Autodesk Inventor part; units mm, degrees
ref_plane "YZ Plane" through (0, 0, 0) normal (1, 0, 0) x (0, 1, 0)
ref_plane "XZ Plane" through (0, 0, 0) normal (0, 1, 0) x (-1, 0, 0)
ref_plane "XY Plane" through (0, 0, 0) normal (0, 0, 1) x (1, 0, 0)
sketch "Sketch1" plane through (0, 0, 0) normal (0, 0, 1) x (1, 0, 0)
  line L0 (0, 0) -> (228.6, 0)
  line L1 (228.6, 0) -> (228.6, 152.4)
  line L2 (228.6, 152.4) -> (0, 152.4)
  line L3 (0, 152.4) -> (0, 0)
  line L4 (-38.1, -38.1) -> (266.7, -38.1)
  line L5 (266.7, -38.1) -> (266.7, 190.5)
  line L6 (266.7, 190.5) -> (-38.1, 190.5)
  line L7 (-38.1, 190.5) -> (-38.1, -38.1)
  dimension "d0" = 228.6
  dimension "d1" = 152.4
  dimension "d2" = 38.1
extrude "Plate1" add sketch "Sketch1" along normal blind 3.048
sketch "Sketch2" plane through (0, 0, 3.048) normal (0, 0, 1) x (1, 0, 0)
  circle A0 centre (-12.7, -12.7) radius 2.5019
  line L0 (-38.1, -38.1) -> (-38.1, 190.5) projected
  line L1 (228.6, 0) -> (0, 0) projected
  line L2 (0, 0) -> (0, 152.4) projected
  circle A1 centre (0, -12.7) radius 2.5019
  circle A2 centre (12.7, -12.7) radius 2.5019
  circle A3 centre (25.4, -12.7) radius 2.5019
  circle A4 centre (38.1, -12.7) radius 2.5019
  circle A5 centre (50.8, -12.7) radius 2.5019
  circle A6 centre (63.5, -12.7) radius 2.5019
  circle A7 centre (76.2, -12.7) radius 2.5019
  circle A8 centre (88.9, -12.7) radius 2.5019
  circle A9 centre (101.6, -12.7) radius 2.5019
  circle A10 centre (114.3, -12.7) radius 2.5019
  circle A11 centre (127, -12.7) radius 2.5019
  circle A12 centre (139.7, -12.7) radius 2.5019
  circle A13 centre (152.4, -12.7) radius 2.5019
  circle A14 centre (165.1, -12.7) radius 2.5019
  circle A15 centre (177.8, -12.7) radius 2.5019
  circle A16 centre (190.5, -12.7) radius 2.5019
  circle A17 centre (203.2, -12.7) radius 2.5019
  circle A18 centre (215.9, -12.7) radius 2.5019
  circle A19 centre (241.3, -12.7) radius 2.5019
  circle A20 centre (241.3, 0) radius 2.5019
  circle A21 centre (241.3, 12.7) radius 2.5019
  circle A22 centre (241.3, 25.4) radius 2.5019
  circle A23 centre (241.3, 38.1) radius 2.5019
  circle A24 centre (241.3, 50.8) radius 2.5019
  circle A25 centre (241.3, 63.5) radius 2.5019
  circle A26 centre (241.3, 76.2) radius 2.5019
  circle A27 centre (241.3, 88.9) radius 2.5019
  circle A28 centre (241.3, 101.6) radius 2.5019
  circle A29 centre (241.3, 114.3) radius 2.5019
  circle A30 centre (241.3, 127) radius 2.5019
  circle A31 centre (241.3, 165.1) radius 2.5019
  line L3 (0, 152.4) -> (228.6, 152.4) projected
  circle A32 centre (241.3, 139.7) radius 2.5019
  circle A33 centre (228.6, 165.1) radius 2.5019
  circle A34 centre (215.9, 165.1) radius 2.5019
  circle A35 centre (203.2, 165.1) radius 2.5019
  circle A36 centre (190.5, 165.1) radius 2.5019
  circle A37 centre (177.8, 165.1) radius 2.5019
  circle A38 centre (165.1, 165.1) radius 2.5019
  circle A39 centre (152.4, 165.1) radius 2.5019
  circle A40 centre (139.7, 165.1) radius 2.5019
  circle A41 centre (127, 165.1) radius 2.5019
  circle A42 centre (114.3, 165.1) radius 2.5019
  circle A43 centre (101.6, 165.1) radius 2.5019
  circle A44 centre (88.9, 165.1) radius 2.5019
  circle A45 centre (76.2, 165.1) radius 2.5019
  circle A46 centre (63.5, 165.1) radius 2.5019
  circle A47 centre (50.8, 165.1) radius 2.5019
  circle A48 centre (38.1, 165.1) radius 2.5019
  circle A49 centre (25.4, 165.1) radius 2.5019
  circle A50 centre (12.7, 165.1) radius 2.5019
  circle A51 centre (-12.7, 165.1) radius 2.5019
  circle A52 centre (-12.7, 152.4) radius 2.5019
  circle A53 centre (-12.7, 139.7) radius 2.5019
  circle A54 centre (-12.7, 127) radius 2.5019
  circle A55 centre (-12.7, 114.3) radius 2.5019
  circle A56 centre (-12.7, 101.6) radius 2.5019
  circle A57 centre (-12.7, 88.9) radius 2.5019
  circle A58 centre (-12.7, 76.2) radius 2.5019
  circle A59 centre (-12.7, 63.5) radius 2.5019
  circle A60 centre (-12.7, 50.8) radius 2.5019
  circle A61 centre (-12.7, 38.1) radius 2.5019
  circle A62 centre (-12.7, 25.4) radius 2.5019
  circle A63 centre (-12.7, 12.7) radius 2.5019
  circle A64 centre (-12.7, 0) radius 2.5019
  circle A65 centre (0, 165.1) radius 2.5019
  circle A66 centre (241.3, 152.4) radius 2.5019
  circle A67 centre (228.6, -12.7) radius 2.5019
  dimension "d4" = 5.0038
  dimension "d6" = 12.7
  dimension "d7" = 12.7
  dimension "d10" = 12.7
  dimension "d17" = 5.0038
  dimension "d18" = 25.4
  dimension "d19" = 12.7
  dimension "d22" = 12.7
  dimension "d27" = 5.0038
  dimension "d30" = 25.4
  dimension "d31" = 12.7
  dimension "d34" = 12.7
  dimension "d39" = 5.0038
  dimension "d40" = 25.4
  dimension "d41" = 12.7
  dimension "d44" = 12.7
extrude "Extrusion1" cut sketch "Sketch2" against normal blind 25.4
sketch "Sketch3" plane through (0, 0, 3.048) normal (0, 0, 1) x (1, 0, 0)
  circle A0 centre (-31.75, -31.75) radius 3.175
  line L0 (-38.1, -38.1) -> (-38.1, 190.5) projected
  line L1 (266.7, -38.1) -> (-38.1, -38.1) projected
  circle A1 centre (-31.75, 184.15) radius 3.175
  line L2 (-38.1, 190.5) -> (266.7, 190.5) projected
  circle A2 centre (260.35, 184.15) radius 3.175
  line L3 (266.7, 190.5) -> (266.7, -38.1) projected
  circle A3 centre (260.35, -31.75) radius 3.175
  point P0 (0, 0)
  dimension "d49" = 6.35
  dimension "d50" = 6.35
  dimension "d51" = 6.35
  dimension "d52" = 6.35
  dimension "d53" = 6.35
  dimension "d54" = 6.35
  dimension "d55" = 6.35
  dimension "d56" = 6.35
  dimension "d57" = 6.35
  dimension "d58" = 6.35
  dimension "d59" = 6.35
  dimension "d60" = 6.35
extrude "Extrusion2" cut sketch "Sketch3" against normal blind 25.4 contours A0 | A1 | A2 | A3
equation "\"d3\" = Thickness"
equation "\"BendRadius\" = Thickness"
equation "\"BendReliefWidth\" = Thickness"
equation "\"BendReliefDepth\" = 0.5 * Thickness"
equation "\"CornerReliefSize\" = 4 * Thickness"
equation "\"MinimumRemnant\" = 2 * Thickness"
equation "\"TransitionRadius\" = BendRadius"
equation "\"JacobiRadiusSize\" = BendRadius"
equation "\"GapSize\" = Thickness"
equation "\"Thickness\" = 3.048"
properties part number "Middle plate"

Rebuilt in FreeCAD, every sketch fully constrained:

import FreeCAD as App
import Part
import Sketcher

V = App.Vector
Q = App.Units.Quantity


def add_polygon(sketch, points):
    """Adds a closed chain of lines whose ends are joined by coincident constraints."""
    first, n = sketch.GeometryCount, len(points)
    for a, b in zip(points, points[1:] + points[:1]):
        sketch.addGeometry(Part.LineSegment(App.Vector(*a, 0), App.Vector(*b, 0)), False)
    for i in range(n):
        sketch.addConstraint(Sketcher.Constraint("Coincident", first + i, 2, first + (i + 1) % n, 1))

doc = App.newDocument("Part")
body = doc.addObject("PartDesign::Body", "Body")

# Sketch on XY plane
sketch1 = doc.addObject("Sketcher::SketchObject", "Sketch")
body.addObject(sketch1)
sketch1.AttachmentSupport = (doc.XY_Plane, [""])
sketch1.MapMode = "FlatFace"
add_polygon(sketch1, [(-38.1, 190.5), (-38.1, -38.1), (266.7, -38.1), (266.7, 190.5)])  # lines 0-3
add_polygon(sketch1, [(228.6, 0), (0, 0), (0, 152.4), (228.6, 152.4)])  # lines 4-7
sketch1.addConstraint([
    Sketcher.Constraint("Vertical", 0),
    Sketcher.Constraint("Horizontal", 1),
    Sketcher.Constraint("Vertical", 2),
    Sketcher.Constraint("Horizontal", 3),
    Sketcher.Constraint("Horizontal", 4),
    Sketcher.Constraint("Vertical", 5),
    Sketcher.Constraint("Horizontal", 6),
    Sketcher.Constraint("Vertical", 7),
    Sketcher.Constraint("Coincident", 4, 2, -1, 1),
    Sketcher.Constraint("Equal", 6, 0),
    Sketcher.Constraint("DistanceX", 4, 2, 4, 1, Q("9 in")),
    Sketcher.Constraint("DistanceY", 5, 1, 5, 2, Q("6 in")),
    Sketcher.Constraint("DistanceX", 0, 2, -1, 1, Q("1.5 in")),
    Sketcher.Constraint("DistanceY", 0, 2, -1, 1, Q("1.5 in")),
    Sketcher.Constraint("DistanceX", 6, 2, 2, 2, Q("1.5 in")),
])
pad1 = doc.addObject("PartDesign::Pad", "Pad")
body.addObject(pad1)
pad1.Profile = sketch1
pad1.Length = Q("0.12 in")

# Sketch on XY plane
sketch2 = doc.addObject("Sketcher::SketchObject", "Sketch001")
body.addObject(sketch2)
sketch2.AttachmentSupport = (doc.XY_Plane, [""])
sketch2.MapMode = "FlatFace"
sketch2.AttachmentOffset = App.Placement(V(0, 0, 0.12 * 25.4), App.Rotation())
sketch2.addGeometry([
    Part.Circle(V(-12.7, -12.7, 0), V(0, 0, 1), 2.5019),  # 0
    Part.Circle(V(0, -12.7, 0), V(0, 0, 1), 2.5019),  # 1
    Part.Circle(V(12.7, -12.7, 0), V(0, 0, 1), 2.5019),  # 2
    Part.Circle(V(25.4, -12.7, 0), V(0, 0, 1), 2.5019),  # 3
    Part.Circle(V(38.1, -12.7, 0), V(0, 0, 1), 2.5019),  # 4
    Part.Circle(V(50.8, -12.7, 0), V(0, 0, 1), 2.5019),  # 5
    Part.Circle(V(63.5, -12.7, 0), V(0, 0, 1), 2.5019),  # 6
    Part.Circle(V(76.2, -12.7, 0), V(0, 0, 1), 2.5019),  # 7
    Part.Circle(V(88.9, -12.7, 0), V(0, 0, 1), 2.5019),  # 8
    Part.Circle(V(101.6, -12.7, 0), V(0, 0, 1), 2.5019),  # 9
    Part.Circle(V(114.3, -12.7, 0), V(0, 0, 1), 2.5019),  # 10
    Part.Circle(V(127, -12.7, 0), V(0, 0, 1), 2.5019),  # 11
    Part.Circle(V(139.7, -12.7, 0), V(0, 0, 1), 2.5019),  # 12
    Part.Circle(V(152.4, -12.7, 0), V(0, 0, 1), 2.5019),  # 13
    Part.Circle(V(165.1, -12.7, 0), V(0, 0, 1), 2.5019),  # 14
    Part.Circle(V(177.8, -12.7, 0), V(0, 0, 1), 2.5019),  # 15
    Part.Circle(V(190.5, -12.7, 0), V(0, 0, 1), 2.5019),  # 16
    Part.Circle(V(203.2, -12.7, 0), V(0, 0, 1), 2.5019),  # 17
    Part.Circle(V(215.9, -12.7, 0), V(0, 0, 1), 2.5019),  # 18
    Part.Circle(V(241.3, -12.7, 0), V(0, 0, 1), 2.5019),  # 19
    Part.Circle(V(241.3, 0, 0), V(0, 0, 1), 2.5019),  # 20
    Part.Circle(V(241.3, 12.7, 0), V(0, 0, 1), 2.5019),  # 21
    Part.Circle(V(241.3, 25.4, 0), V(0, 0, 1), 2.5019),  # 22
    Part.Circle(V(241.3, 38.1, 0), V(0, 0, 1), 2.5019),  # 23
    Part.Circle(V(241.3, 50.8, 0), V(0, 0, 1), 2.5019),  # 24
    Part.Circle(V(241.3, 63.5, 0), V(0, 0, 1), 2.5019),  # 25
    Part.Circle(V(241.3, 76.2, 0), V(0, 0, 1), 2.5019),  # 26
    Part.Circle(V(241.3, 88.9, 0), V(0, 0, 1), 2.5019),  # 27
    Part.Circle(V(241.3, 101.6, 0), V(0, 0, 1), 2.5019),  # 28
    Part.Circle(V(241.3, 114.3, 0), V(0, 0, 1), 2.5019),  # 29
    Part.Circle(V(241.3, 127, 0), V(0, 0, 1), 2.5019),  # 30
    Part.Circle(V(241.3, 165.1, 0), V(0, 0, 1), 2.5019),  # 31
    Part.Circle(V(241.3, 139.7, 0), V(0, 0, 1), 2.5019),  # 32
    Part.Circle(V(228.6, 165.1, 0), V(0, 0, 1), 2.5019),  # 33
    Part.Circle(V(215.9, 165.1, 0), V(0, 0, 1), 2.5019),  # 34
    Part.Circle(V(203.2, 165.1, 0), V(0, 0, 1), 2.5019),  # 35
    Part.Circle(V(190.5, 165.1, 0), V(0, 0, 1), 2.5019),  # 36
    Part.Circle(V(177.8, 165.1, 0), V(0, 0, 1), 2.5019),  # 37
    Part.Circle(V(165.1, 165.1, 0), V(0, 0, 1), 2.5019),  # 38
    Part.Circle(V(152.4, 165.1, 0), V(0, 0, 1), 2.5019),  # 39
    Part.Circle(V(139.7, 165.1, 0), V(0, 0, 1), 2.5019),  # 40
    Part.Circle(V(127, 165.1, 0), V(0, 0, 1), 2.5019),  # 41
    Part.Circle(V(114.3, 165.1, 0), V(0, 0, 1), 2.5019),  # 42
    Part.Circle(V(101.6, 165.1, 0), V(0, 0, 1), 2.5019),  # 43
    Part.Circle(V(88.9, 165.1, 0), V(0, 0, 1), 2.5019),  # 44
    Part.Circle(V(76.2, 165.1, 0), V(0, 0, 1), 2.5019),  # 45
    Part.Circle(V(63.5, 165.1, 0), V(0, 0, 1), 2.5019),  # 46
    Part.Circle(V(50.8, 165.1, 0), V(0, 0, 1), 2.5019),  # 47
    Part.Circle(V(38.1, 165.1, 0), V(0, 0, 1), 2.5019),  # 48
    Part.Circle(V(25.4, 165.1, 0), V(0, 0, 1), 2.5019),  # 49
    Part.Circle(V(12.7, 165.1, 0), V(0, 0, 1), 2.5019),  # 50
    Part.Circle(V(-12.7, 165.1, 0), V(0, 0, 1), 2.5019),  # 51
    Part.Circle(V(-12.7, 152.4, 0), V(0, 0, 1), 2.5019),  # 52
    Part.Circle(V(-12.7, 139.7, 0), V(0, 0, 1), 2.5019),  # 53
    Part.Circle(V(-12.7, 127, 0), V(0, 0, 1), 2.5019),  # 54
    Part.Circle(V(-12.7, 114.3, 0), V(0, 0, 1), 2.5019),  # 55
    Part.Circle(V(-12.7, 101.6, 0), V(0, 0, 1), 2.5019),  # 56
    Part.Circle(V(-12.7, 88.9, 0), V(0, 0, 1), 2.5019),  # 57
    Part.Circle(V(-12.7, 76.2, 0), V(0, 0, 1), 2.5019),  # 58
    Part.Circle(V(-12.7, 63.5, 0), V(0, 0, 1), 2.5019),  # 59
    Part.Circle(V(-12.7, 50.8, 0), V(0, 0, 1), 2.5019),  # 60
    Part.Circle(V(-12.7, 38.1, 0), V(0, 0, 1), 2.5019),  # 61
    Part.Circle(V(-12.7, 25.4, 0), V(0, 0, 1), 2.5019),  # 62
    Part.Circle(V(-12.7, 12.7, 0), V(0, 0, 1), 2.5019),  # 63
    Part.Circle(V(-12.7, 0, 0), V(0, 0, 1), 2.5019),  # 64
    Part.Circle(V(0, 165.1, 0), V(0, 0, 1), 2.5019),  # 65
    Part.Circle(V(241.3, 152.4, 0), V(0, 0, 1), 2.5019),  # 66
    Part.Circle(V(228.6, -12.7, 0), V(0, 0, 1), 2.5019),  # 67
], False)
sketch2.addConstraint([
    Sketcher.Constraint("Equal", 0, 1),
    Sketcher.Constraint("Equal", 1, 2),
    Sketcher.Constraint("Equal", 2, 3),
    Sketcher.Constraint("Equal", 3, 4),
    Sketcher.Constraint("Equal", 4, 5),
    Sketcher.Constraint("Equal", 5, 6),
    Sketcher.Constraint("Equal", 6, 7),
    Sketcher.Constraint("Equal", 7, 8),
    Sketcher.Constraint("Equal", 8, 9),
    Sketcher.Constraint("Equal", 9, 10),
    Sketcher.Constraint("Equal", 10, 11),
    Sketcher.Constraint("Equal", 11, 12),
    Sketcher.Constraint("Equal", 12, 13),
    Sketcher.Constraint("Equal", 13, 14),
    Sketcher.Constraint("Equal", 14, 15),
    Sketcher.Constraint("Equal", 15, 16),
    Sketcher.Constraint("Equal", 16, 17),
    Sketcher.Constraint("Equal", 17, 18),
    Sketcher.Constraint("Equal", 18, 19),
    Sketcher.Constraint("Equal", 19, 20),
    Sketcher.Constraint("Equal", 20, 21),
    Sketcher.Constraint("Equal", 21, 22),
    Sketcher.Constraint("Equal", 22, 23),
    Sketcher.Constraint("Equal", 23, 24),
    Sketcher.Constraint("Equal", 24, 25),
    Sketcher.Constraint("Equal", 25, 26),
    Sketcher.Constraint("Equal", 26, 27),
    Sketcher.Constraint("Equal", 27, 28),
    Sketcher.Constraint("Equal", 28, 29),
    Sketcher.Constraint("Equal", 29, 30),
    Sketcher.Constraint("Equal", 30, 31),
    Sketcher.Constraint("Equal", 31, 32),
    Sketcher.Constraint("Equal", 32, 33),
    Sketcher.Constraint("Equal", 33, 34),
    Sketcher.Constraint("Equal", 34, 35),
    Sketcher.Constraint("Equal", 35, 36),
    Sketcher.Constraint("Equal", 36, 37),
    Sketcher.Constraint("Equal", 37, 38),
    Sketcher.Constraint("Equal", 38, 39),
    Sketcher.Constraint("Equal", 39, 40),
    Sketcher.Constraint("Equal", 40, 41),
    Sketcher.Constraint("Equal", 41, 42),
    Sketcher.Constraint("Equal", 42, 43),
    Sketcher.Constraint("Equal", 43, 44),
    Sketcher.Constraint("Equal", 44, 45),
    Sketcher.Constraint("Equal", 45, 46),
    Sketcher.Constraint("Equal", 46, 47),
    Sketcher.Constraint("Equal", 47, 48),
    Sketcher.Constraint("Equal", 48, 49),
    Sketcher.Constraint("Equal", 49, 50),
    Sketcher.Constraint("Equal", 50, 51),
    Sketcher.Constraint("Equal", 51, 52),
    Sketcher.Constraint("Equal", 52, 53),
    Sketcher.Constraint("Equal", 53, 54),
    Sketcher.Constraint("Equal", 54, 55),
    Sketcher.Constraint("Equal", 55, 56),
    Sketcher.Constraint("Equal", 56, 57),
    Sketcher.Constraint("Equal", 57, 58),
    Sketcher.Constraint("Equal", 58, 59),
    Sketcher.Constraint("Equal", 59, 60),
    Sketcher.Constraint("Equal", 60, 61),
    Sketcher.Constraint("Equal", 61, 62),
    Sketcher.Constraint("Equal", 62, 63),
    Sketcher.Constraint("Equal", 63, 64),
    Sketcher.Constraint("Equal", 64, 65),
    Sketcher.Constraint("Equal", 65, 66),
    Sketcher.Constraint("Equal", 66, 67),
    Sketcher.Constraint("Symmetric", 2, 3, 63, 3, -1, 1),
    Sketcher.Constraint("Symmetric", 0, 3, 2, 3, -2),
    Sketcher.Constraint("Symmetric", 50, 3, 51, 3, -2),
    Sketcher.Constraint("Symmetric", 19, 3, 21, 3, -1),
    Sketcher.Constraint("PointOnObject", 1, 3, -2),
    Sketcher.Constraint("PointOnObject", 20, 3, -1),
    Sketcher.Constraint("PointOnObject", 64, 3, -1),
    Sketcher.Constraint("PointOnObject", 65, 3, -2),
    Sketcher.Constraint("Horizontal", 0, 3, 1, 3),
    Sketcher.Constraint("Horizontal", 2, 3, 3, 3),
    Sketcher.Constraint("Horizontal", 3, 3, 4, 3),
    Sketcher.Constraint("Horizontal", 4, 3, 5, 3),
    Sketcher.Constraint("Horizontal", 5, 3, 6, 3),
    Sketcher.Constraint("Horizontal", 6, 3, 7, 3),
    Sketcher.Constraint("Horizontal", 7, 3, 8, 3),
    Sketcher.Constraint("Horizontal", 8, 3, 9, 3),
    Sketcher.Constraint("Horizontal", 9, 3, 10, 3),
    Sketcher.Constraint("Horizontal", 10, 3, 11, 3),
    Sketcher.Constraint("Horizontal", 11, 3, 12, 3),
    Sketcher.Constraint("Horizontal", 12, 3, 13, 3),
    Sketcher.Constraint("Horizontal", 13, 3, 14, 3),
    Sketcher.Constraint("Horizontal", 14, 3, 15, 3),
    Sketcher.Constraint("Horizontal", 15, 3, 16, 3),
    Sketcher.Constraint("Horizontal", 16, 3, 17, 3),
    Sketcher.Constraint("Horizontal", 17, 3, 18, 3),
    Sketcher.Constraint("Horizontal", 18, 3, 19, 3),
    Sketcher.Constraint("Horizontal", 31, 3, 33, 3),
    Sketcher.Constraint("Horizontal", 33, 3, 34, 3),
    Sketcher.Constraint("Horizontal", 34, 3, 35, 3),
    Sketcher.Constraint("Horizontal", 35, 3, 36, 3),
    Sketcher.Constraint("Horizontal", 36, 3, 37, 3),
    Sketcher.Constraint("Horizontal", 37, 3, 38, 3),
    Sketcher.Constraint("Horizontal", 38, 3, 39, 3),
    Sketcher.Constraint("Horizontal", 39, 3, 40, 3),
    Sketcher.Constraint("Horizontal", 40, 3, 41, 3),
    Sketcher.Constraint("Horizontal", 41, 3, 42, 3),
    Sketcher.Constraint("Horizontal", 42, 3, 43, 3),
    Sketcher.Constraint("Horizontal", 43, 3, 44, 3),
    Sketcher.Constraint("Horizontal", 44, 3, 45, 3),
    Sketcher.Constraint("Horizontal", 45, 3, 46, 3),
    Sketcher.Constraint("Horizontal", 46, 3, 47, 3),
    Sketcher.Constraint("Horizontal", 47, 3, 48, 3),
    Sketcher.Constraint("Horizontal", 48, 3, 49, 3),
    Sketcher.Constraint("Horizontal", 49, 3, 50, 3),
    Sketcher.Constraint("Horizontal", 32, 3, 53, 3),
    Sketcher.Constraint("Horizontal", 30, 3, 54, 3),
    Sketcher.Constraint("Horizontal", 29, 3, 55, 3),
    Sketcher.Constraint("Horizontal", 28, 3, 56, 3),
    Sketcher.Constraint("Horizontal", 27, 3, 57, 3),
    Sketcher.Constraint("Horizontal", 26, 3, 58, 3),
    Sketcher.Constraint("Horizontal", 25, 3, 59, 3),
    Sketcher.Constraint("Horizontal", 24, 3, 60, 3),
    Sketcher.Constraint("Horizontal", 23, 3, 61, 3),
    Sketcher.Constraint("Horizontal", 22, 3, 62, 3),
    Sketcher.Constraint("Horizontal", 51, 3, 65, 3),
    Sketcher.Constraint("Horizontal", 52, 3, 66, 3),
    Sketcher.Constraint("Horizontal", 19, 3, 67, 3),
    Sketcher.Constraint("Vertical", 19, 3, 20, 3),
    Sketcher.Constraint("Vertical", 21, 3, 22, 3),
    Sketcher.Constraint("Vertical", 22, 3, 23, 3),
    Sketcher.Constraint("Vertical", 23, 3, 24, 3),
    Sketcher.Constraint("Vertical", 24, 3, 25, 3),
    Sketcher.Constraint("Vertical", 25, 3, 26, 3),
    Sketcher.Constraint("Vertical", 26, 3, 27, 3),
    Sketcher.Constraint("Vertical", 27, 3, 28, 3),
    Sketcher.Constraint("Vertical", 28, 3, 29, 3),
    Sketcher.Constraint("Vertical", 29, 3, 30, 3),
    Sketcher.Constraint("Vertical", 30, 3, 31, 3),
    Sketcher.Constraint("Vertical", 31, 3, 32, 3),
    Sketcher.Constraint("Vertical", 18, 3, 34, 3),
    Sketcher.Constraint("Vertical", 17, 3, 35, 3),
    Sketcher.Constraint("Vertical", 16, 3, 36, 3),
    Sketcher.Constraint("Vertical", 15, 3, 37, 3),
    Sketcher.Constraint("Vertical", 14, 3, 38, 3),
    Sketcher.Constraint("Vertical", 13, 3, 39, 3),
    Sketcher.Constraint("Vertical", 12, 3, 40, 3),
    Sketcher.Constraint("Vertical", 11, 3, 41, 3),
    Sketcher.Constraint("Vertical", 10, 3, 42, 3),
    Sketcher.Constraint("Vertical", 9, 3, 43, 3),
    Sketcher.Constraint("Vertical", 8, 3, 44, 3),
    Sketcher.Constraint("Vertical", 7, 3, 45, 3),
    Sketcher.Constraint("Vertical", 6, 3, 46, 3),
    Sketcher.Constraint("Vertical", 5, 3, 47, 3),
    Sketcher.Constraint("Vertical", 4, 3, 48, 3),
    Sketcher.Constraint("Vertical", 3, 3, 49, 3),
    Sketcher.Constraint("Vertical", 2, 3, 50, 3),
    Sketcher.Constraint("Vertical", 51, 3, 52, 3),
    Sketcher.Constraint("Vertical", 52, 3, 53, 3),
    Sketcher.Constraint("Vertical", 53, 3, 54, 3),
    Sketcher.Constraint("Vertical", 54, 3, 55, 3),
    Sketcher.Constraint("Vertical", 55, 3, 56, 3),
    Sketcher.Constraint("Vertical", 56, 3, 57, 3),
    Sketcher.Constraint("Vertical", 57, 3, 58, 3),
    Sketcher.Constraint("Vertical", 58, 3, 59, 3),
    Sketcher.Constraint("Vertical", 59, 3, 60, 3),
    Sketcher.Constraint("Vertical", 60, 3, 61, 3),
    Sketcher.Constraint("Vertical", 61, 3, 62, 3),
    Sketcher.Constraint("Vertical", 63, 3, 64, 3),
    Sketcher.Constraint("Vertical", 32, 3, 66, 3),
    Sketcher.Constraint("Vertical", 33, 3, 67, 3),
    Sketcher.Constraint("Diameter", 0, Q("0.197 in")),
    Sketcher.Constraint("DistanceX", -1, 1, 3, 3, Q("1 in")),
    Sketcher.Constraint("DistanceY", -1, 1, 22, 3, Q("1 in")),
    Sketcher.Constraint("DistanceX", 0, 3, -1, 1, Q("0.5 in")),
    Sketcher.Constraint("DistanceY", 0, 3, -1, 1, Q("0.5 in")),
    Sketcher.Constraint("DistanceX", -1, 1, 5, 3, Q("2 in")),
    Sketcher.Constraint("DistanceX", -1, 1, 7, 3, Q("3 in")),
    Sketcher.Constraint("DistanceX", -1, 1, 9, 3, Q("4 in")),
    Sketcher.Constraint("DistanceX", -1, 1, 11, 3, Q("5 in")),
    Sketcher.Constraint("DistanceX", -1, 1, 13, 3, Q("6 in")),
    Sketcher.Constraint("DistanceX", -1, 1, 15, 3, Q("7 in")),
    Sketcher.Constraint("DistanceX", -1, 1, 17, 3, Q("8 in")),
    Sketcher.Constraint("DistanceY", -1, 1, 24, 3, Q("2 in")),
    Sketcher.Constraint("DistanceY", -1, 1, 26, 3, Q("3 in")),
    Sketcher.Constraint("DistanceY", -1, 1, 28, 3, Q("4 in")),
    Sketcher.Constraint("DistanceY", -1, 1, 30, 3, Q("5 in")),
    Sketcher.Constraint("DistanceX", -1, 1, 33, 3, Q("9 in")),
    Sketcher.Constraint("DistanceY", -1, 1, 52, 3, Q("6 in")),
    Sketcher.Constraint("DistanceX", -1, 1, 4, 3, Q("1.5 in")),
    Sketcher.Constraint("DistanceX", -1, 1, 6, 3, Q("2.5 in")),
    Sketcher.Constraint("DistanceX", -1, 1, 8, 3, Q("3.5 in")),
    Sketcher.Constraint("DistanceX", -1, 1, 10, 3, Q("4.5 in")),
    Sketcher.Constraint("DistanceX", -1, 1, 12, 3, Q("5.5 in")),
    Sketcher.Constraint("DistanceX", -1, 1, 14, 3, Q("6.5 in")),
    Sketcher.Constraint("DistanceX", -1, 1, 16, 3, Q("7.5 in")),
    Sketcher.Constraint("DistanceX", -1, 1, 18, 3, Q("8.5 in")),
    Sketcher.Constraint("DistanceX", -1, 1, 19, 3, Q("9.5 in")),
    Sketcher.Constraint("DistanceY", -1, 1, 23, 3, Q("1.5 in")),
    Sketcher.Constraint("DistanceY", -1, 1, 25, 3, Q("2.5 in")),
    Sketcher.Constraint("DistanceY", -1, 1, 27, 3, Q("3.5 in")),
    Sketcher.Constraint("DistanceY", -1, 1, 29, 3, Q("4.5 in")),
    Sketcher.Constraint("DistanceY", -1, 1, 31, 3, Q("6.5 in")),
    Sketcher.Constraint("DistanceY", -1, 1, 32, 3, Q("5.5 in")),
])
pocket1 = doc.addObject("PartDesign::Pocket", "Pocket")
body.addObject(pocket1)
pocket1.Profile = sketch2
pocket1.Length = Q("1 in")

# Sketch on XY plane
sketch3 = doc.addObject("Sketcher::SketchObject", "Sketch002")
body.addObject(sketch3)
sketch3.AttachmentSupport = (doc.XY_Plane, [""])
sketch3.MapMode = "FlatFace"
sketch3.AttachmentOffset = App.Placement(V(0, 0, 0.12 * 25.4), App.Rotation())
sketch3.addGeometry([
    Part.Circle(V(-31.75, -31.75, 0), V(0, 0, 1), 3.175),
    Part.Circle(V(-31.75, 184.15, 0), V(0, 0, 1), 3.175),
    Part.Circle(V(260.35, 184.15, 0), V(0, 0, 1), 3.175),
    Part.Circle(V(260.35, -31.75, 0), V(0, 0, 1), 3.175),
], False)
sketch3.addConstraint([
    Sketcher.Constraint("Equal", 0, 1),
    Sketcher.Constraint("Equal", 1, 2),
    Sketcher.Constraint("Equal", 2, 3),
    Sketcher.Constraint("Horizontal", 1, 3, 2, 3),
    Sketcher.Constraint("Horizontal", 0, 3, 3, 3),
    Sketcher.Constraint("Vertical", 0, 3, 1, 3),
    Sketcher.Constraint("Vertical", 2, 3, 3, 3),
    Sketcher.Constraint("Diameter", 0, Q("0.25 in")),
    Sketcher.Constraint("DistanceY", 0, 3, 1, 3, Q("8.5 in")),
    Sketcher.Constraint("DistanceX", 1, 3, 2, 3, Q("11.5 in")),
    Sketcher.Constraint("DistanceX", 0, 3, -1, 1, Q("1.25 in")),
    Sketcher.Constraint("DistanceY", 0, 3, -1, 1, Q("1.25 in")),
])
pocket2 = doc.addObject("PartDesign::Pocket", "Pocket001")
body.addObject(pocket2)
pocket2.Profile = sketch3
pocket2.Length = Q("1 in")

doc.recompute()
